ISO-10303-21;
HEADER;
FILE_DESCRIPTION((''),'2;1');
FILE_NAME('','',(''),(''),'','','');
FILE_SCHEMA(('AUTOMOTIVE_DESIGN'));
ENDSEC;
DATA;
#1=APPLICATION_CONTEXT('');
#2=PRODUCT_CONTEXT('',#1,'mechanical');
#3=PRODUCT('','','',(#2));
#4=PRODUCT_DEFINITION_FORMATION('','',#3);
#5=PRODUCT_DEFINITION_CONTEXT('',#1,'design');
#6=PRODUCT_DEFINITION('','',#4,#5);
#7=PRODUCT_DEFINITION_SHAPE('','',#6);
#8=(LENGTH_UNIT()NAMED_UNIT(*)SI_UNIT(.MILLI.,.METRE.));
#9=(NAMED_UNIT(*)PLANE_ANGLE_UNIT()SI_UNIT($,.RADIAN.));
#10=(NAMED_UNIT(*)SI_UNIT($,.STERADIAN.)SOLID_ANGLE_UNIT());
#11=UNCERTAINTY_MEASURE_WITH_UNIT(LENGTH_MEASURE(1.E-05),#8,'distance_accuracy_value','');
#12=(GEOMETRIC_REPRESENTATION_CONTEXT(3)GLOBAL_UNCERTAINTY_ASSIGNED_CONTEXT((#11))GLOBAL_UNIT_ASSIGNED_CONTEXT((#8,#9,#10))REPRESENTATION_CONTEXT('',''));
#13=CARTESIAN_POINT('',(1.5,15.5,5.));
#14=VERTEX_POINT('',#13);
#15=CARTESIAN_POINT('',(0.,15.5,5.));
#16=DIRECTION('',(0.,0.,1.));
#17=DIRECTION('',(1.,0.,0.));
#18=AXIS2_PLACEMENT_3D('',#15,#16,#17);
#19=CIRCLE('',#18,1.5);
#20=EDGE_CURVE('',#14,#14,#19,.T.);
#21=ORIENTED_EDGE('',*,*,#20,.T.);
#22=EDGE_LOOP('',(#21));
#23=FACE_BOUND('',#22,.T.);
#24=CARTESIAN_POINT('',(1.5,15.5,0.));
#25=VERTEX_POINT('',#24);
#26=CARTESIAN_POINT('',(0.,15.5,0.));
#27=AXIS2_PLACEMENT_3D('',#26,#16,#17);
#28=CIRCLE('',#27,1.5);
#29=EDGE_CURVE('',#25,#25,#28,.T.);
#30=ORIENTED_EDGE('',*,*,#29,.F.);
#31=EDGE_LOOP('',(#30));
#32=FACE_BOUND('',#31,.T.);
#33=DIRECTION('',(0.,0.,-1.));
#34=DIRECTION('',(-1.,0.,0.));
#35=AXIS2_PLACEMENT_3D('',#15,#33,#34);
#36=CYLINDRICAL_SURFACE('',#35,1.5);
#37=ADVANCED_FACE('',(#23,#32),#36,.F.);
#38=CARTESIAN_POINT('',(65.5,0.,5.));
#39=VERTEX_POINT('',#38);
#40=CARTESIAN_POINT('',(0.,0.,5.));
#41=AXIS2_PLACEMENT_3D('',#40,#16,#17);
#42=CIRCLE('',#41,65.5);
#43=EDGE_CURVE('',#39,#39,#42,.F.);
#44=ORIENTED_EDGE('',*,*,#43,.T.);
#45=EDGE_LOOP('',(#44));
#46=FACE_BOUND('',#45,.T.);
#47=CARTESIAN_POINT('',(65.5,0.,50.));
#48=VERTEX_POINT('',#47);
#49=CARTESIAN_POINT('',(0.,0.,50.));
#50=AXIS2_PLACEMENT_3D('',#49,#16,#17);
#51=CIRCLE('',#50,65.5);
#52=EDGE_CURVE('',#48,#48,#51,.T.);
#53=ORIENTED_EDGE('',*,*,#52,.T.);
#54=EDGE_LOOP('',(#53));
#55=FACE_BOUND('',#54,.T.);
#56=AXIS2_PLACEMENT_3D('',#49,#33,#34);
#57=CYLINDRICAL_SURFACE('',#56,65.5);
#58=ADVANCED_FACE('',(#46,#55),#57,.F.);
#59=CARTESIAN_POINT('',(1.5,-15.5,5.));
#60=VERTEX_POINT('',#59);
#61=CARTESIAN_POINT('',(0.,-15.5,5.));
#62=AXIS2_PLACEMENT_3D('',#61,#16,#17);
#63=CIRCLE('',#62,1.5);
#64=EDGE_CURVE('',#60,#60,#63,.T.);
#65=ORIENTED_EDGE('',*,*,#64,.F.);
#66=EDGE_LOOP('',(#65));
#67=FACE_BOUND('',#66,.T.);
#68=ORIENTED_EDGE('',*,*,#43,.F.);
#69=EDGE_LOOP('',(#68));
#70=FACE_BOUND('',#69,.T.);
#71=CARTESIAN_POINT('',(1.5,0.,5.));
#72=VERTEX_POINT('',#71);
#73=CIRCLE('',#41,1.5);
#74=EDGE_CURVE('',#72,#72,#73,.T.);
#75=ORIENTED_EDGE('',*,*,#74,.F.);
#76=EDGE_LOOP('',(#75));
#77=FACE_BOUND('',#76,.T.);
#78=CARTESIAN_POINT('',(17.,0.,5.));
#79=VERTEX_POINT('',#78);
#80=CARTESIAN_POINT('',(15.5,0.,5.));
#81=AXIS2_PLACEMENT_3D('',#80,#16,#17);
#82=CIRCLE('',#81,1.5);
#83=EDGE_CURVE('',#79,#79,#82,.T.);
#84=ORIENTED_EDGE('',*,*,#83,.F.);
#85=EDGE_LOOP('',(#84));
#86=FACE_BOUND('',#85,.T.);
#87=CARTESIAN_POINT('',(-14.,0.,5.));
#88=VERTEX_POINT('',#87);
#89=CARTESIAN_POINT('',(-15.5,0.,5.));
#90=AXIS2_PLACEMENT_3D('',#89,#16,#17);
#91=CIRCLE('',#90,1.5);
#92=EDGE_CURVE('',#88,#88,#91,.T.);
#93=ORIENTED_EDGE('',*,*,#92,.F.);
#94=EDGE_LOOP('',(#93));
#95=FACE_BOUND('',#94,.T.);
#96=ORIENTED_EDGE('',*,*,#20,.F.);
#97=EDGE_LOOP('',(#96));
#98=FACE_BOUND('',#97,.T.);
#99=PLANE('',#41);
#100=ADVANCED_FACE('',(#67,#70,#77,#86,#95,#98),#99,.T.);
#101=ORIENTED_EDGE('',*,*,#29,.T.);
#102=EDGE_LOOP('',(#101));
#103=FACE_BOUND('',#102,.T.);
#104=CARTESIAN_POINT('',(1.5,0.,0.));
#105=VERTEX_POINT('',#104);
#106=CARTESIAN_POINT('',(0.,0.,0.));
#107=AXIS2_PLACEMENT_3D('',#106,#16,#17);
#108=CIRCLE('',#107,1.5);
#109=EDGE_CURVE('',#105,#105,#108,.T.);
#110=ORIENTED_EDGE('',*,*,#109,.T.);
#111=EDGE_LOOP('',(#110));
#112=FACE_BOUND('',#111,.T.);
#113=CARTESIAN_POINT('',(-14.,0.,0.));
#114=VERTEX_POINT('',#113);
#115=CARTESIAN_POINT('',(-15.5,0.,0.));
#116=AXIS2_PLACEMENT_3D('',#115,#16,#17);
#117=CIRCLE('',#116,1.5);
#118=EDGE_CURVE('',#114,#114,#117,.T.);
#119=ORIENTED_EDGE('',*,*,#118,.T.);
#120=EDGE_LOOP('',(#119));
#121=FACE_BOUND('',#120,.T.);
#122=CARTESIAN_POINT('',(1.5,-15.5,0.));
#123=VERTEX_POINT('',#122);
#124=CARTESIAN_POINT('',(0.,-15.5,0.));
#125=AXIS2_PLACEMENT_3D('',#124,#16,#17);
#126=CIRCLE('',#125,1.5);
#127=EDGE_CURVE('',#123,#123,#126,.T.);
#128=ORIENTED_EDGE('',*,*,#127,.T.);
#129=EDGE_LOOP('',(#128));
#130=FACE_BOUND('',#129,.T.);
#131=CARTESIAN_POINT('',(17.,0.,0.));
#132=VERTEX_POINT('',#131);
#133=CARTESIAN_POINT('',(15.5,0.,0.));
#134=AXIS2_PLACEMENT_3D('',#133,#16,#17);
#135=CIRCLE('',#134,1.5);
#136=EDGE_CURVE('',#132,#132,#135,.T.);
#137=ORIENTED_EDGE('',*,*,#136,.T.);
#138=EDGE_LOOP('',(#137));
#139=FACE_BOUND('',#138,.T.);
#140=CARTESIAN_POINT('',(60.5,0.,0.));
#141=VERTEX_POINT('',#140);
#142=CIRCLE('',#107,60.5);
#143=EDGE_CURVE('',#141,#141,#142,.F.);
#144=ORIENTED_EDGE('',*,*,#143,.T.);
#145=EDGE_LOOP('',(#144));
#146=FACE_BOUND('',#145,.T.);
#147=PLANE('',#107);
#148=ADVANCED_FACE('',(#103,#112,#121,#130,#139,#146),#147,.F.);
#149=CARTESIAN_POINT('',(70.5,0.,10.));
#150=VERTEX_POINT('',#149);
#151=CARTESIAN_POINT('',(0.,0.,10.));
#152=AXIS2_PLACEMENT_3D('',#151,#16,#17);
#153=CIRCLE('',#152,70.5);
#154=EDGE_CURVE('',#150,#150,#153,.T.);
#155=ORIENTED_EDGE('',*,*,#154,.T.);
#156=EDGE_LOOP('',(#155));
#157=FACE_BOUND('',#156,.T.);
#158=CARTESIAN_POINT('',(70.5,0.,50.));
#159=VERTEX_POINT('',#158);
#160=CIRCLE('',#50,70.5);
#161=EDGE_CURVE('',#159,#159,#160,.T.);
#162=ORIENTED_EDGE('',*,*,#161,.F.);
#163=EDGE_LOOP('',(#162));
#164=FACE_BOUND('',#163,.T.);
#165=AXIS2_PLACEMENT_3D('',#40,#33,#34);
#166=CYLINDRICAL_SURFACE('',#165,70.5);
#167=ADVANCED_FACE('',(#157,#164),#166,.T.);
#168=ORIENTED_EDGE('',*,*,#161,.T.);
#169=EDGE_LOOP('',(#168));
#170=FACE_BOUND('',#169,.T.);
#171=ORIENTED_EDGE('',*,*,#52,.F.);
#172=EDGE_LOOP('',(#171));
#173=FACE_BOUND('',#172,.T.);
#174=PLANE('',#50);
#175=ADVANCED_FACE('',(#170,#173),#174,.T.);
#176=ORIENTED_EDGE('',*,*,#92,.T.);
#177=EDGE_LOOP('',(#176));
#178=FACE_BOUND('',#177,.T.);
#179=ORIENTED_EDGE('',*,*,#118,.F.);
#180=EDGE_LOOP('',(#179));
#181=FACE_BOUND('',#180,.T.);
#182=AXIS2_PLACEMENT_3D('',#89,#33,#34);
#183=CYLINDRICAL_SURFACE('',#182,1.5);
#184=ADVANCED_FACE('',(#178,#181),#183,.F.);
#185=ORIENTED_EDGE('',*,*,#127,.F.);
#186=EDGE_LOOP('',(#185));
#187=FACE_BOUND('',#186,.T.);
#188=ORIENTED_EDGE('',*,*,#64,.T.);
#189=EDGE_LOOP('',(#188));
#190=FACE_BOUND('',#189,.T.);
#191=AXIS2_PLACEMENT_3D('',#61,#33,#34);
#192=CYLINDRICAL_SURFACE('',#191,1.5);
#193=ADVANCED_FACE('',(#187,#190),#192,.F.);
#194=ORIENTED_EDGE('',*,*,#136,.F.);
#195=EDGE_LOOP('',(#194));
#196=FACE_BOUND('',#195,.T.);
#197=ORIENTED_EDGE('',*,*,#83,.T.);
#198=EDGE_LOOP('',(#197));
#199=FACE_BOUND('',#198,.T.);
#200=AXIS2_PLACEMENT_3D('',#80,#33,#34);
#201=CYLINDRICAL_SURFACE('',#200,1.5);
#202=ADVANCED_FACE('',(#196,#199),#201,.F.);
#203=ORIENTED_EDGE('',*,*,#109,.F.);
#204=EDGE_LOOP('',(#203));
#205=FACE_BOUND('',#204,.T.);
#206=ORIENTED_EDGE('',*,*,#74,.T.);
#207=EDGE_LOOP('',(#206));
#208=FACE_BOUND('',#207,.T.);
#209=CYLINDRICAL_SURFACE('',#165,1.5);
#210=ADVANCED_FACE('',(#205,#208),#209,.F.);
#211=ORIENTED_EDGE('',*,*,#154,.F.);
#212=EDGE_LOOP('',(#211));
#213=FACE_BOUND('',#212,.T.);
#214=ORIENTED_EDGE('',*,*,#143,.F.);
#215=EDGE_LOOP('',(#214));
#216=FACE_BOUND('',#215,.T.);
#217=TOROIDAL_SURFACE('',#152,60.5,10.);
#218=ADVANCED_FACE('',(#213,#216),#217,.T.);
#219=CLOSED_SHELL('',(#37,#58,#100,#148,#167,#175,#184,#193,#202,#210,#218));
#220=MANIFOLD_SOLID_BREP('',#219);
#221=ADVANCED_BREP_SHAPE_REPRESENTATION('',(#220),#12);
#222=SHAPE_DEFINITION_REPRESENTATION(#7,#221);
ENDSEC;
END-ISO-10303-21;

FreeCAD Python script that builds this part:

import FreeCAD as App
import Part
import Sketcher
from FreeCAD import Vector


def edges_at(feature, points):
    """Names of the edges that pass closest to the given points."""
    edges = feature.Shape.Edges
    near = lambda p: min(range(len(edges)), key=lambda i: edges[i].distToShape(Part.Vertex(*p))[0])
    return sorted({f"Edge{near(p) + 1}" for p in points})

doc = App.newDocument("Part")
body = doc.addObject("PartDesign::Body", "Body")

# Sketch on XY plane
sketch1 = body.newObject("Sketcher::SketchObject", "Sketch")
sketch1.AttachmentSupport = (doc.getObject("XY_Plane"), [""])
sketch1.MapMode = "FlatFace"
sketch1.addGeometry([
    Part.Circle(Vector(0, 0, 0), Vector(0, 0, 1), 70.5),  # 0
    Part.Circle(Vector(0, 15.5, 0), Vector(0, 0, 1), 1.5),  # 1
    Part.Circle(Vector(0, -15.5, 0), Vector(0, 0, 1), 1.5),  # 2
    Part.Circle(Vector(-15.5, 0, 0), Vector(0, 0, 1), 1.5),  # 3
    Part.Circle(Vector(0, 0, 0), Vector(0, 0, 1), 1.5),  # 4
    Part.Circle(Vector(15.5, 0, 0), Vector(0, 0, 1), 1.5),  # 5
], False)
sketch1.addConstraint([
    Sketcher.Constraint("Coincident", 0, 3, -1, 1),
    Sketcher.Constraint("Coincident", 4, 3, -1, 1),
    Sketcher.Constraint("Equal", 1, 2),
    Sketcher.Constraint("Equal", 2, 3),
    Sketcher.Constraint("Equal", 3, 4),
    Sketcher.Constraint("Equal", 4, 5),
    Sketcher.Constraint("Symmetric", 1, 3, 2, 3, -1, 1),
    Sketcher.Constraint("Symmetric", 3, 3, 5, 3, -1, 1),
    Sketcher.Constraint("PointOnObject", 1, 3, -2),
    Sketcher.Constraint("PointOnObject", 3, 3, -1),
    Sketcher.Constraint("Diameter", 0, 141.0),
    Sketcher.Constraint("Diameter", 1, 3.0),
    Sketcher.Constraint("DistanceY", 2, 3, 1, 3, 31.0),
    Sketcher.Constraint("DistanceX", 3, 3, 5, 3, 31.0),
])
pad1 = body.newObject("PartDesign::Pad", "Pad")
pad1.Profile = sketch1
pad1.Length = 5

# Sketch on XY plane
sketch2 = body.newObject("Sketcher::SketchObject", "Sketch001")
sketch2.AttachmentSupport = (doc.getObject("XY_Plane"), [""])
sketch2.MapMode = "FlatFace"
sketch2.addGeometry([
    Part.Circle(Vector(0, 0, 0), Vector(0, 0, 1), 70.5),
    Part.Circle(Vector(0, 0, 0), Vector(0, 0, 1), 65.5),
], False)
sketch2.addConstraint([
    Sketcher.Constraint("Coincident", 0, 3, -1, 1),
    Sketcher.Constraint("Coincident", 1, 3, -1, 1),
    Sketcher.Constraint("Diameter", 0, 141.0),
    Sketcher.Constraint("Diameter", 1, 131.0),
])
pad2 = body.newObject("PartDesign::Pad", "Pad001")
pad2.Profile = sketch2
pad2.Length = 50
doc.recompute()

fillet = body.newObject("PartDesign::Fillet", "Fillet")
fillet.Base = (pad2, edges_at(pad2, [(-70.5, 0, 0)]))
fillet.Radius = 10

doc.recompute()
